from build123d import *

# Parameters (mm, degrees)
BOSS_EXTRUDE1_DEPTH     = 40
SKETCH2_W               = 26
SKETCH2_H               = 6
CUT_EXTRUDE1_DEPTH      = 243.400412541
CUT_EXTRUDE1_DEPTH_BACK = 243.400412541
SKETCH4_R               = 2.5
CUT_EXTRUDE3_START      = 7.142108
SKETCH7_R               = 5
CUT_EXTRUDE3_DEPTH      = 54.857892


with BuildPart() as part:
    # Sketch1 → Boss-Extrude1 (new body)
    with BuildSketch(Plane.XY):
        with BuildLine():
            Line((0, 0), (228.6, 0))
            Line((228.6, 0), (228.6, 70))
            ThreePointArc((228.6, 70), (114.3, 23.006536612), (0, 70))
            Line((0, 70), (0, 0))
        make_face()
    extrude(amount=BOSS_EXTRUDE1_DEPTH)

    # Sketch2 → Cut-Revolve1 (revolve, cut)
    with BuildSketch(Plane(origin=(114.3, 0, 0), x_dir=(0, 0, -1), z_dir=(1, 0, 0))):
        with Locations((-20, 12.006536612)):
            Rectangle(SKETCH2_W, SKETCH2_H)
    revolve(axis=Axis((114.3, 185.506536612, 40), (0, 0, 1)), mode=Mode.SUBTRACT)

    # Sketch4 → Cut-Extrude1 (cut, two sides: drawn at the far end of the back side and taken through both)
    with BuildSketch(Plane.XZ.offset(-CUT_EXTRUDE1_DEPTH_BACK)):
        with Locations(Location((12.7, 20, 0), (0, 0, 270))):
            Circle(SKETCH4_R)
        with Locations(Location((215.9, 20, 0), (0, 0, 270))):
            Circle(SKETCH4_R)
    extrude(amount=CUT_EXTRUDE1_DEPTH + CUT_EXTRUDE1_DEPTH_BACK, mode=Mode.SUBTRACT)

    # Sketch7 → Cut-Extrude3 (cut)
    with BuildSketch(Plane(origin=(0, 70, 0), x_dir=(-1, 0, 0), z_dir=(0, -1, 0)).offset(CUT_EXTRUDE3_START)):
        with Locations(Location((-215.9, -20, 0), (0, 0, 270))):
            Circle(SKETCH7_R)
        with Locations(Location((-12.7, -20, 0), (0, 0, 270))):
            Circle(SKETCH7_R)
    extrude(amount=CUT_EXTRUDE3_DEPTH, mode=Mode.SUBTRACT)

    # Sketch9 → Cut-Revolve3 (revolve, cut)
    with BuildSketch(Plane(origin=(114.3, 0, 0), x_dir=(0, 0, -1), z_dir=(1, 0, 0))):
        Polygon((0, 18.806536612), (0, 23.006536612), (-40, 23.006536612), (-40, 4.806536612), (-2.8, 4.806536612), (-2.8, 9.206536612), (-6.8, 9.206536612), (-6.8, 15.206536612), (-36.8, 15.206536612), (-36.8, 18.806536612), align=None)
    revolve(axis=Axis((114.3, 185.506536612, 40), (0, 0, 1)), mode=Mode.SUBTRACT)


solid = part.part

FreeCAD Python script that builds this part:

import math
import FreeCAD as App
import Part
import Sketcher
from FreeCAD import Vector
Q = App.Units.Quantity

doc = App.newDocument("Part")
body = doc.addObject("PartDesign::Body", "Body")

sketch1 = doc.addObject("Sketcher::SketchObject", "Sketch")
body.addObject(sketch1)
sketch1.AttachmentSupport = (doc.XY_Plane, [""])
sketch1.MapMode = "FlatFace"
sketch1.addGeometry([
    Part.LineSegment(Vector(0, 0, 0), Vector(229, 0, 0)),
    Part.LineSegment(Vector(229, 0, 0), Vector(229, 70, 0)),
    Part.ArcOfCircle(Part.Circle(Vector(114, 186, 0), Vector(0, 0, 1), 163), math.radians(-135), math.radians(-45)),
    Part.LineSegment(Vector(0, 70, 0), Vector(0, 0, 0)),
], False)
sketch1.addConstraint([
    Sketcher.Constraint("Coincident", 0, 2, 1, 1),
    Sketcher.Constraint("Coincident", 1, 2, 2, 2),
    Sketcher.Constraint("Coincident", 2, 1, 3, 1),
    Sketcher.Constraint("Coincident", 3, 2, 0, 1),
    Sketcher.Constraint("Horizontal", 0),
    Sketcher.Constraint("Vertical", 1),
    Sketcher.Constraint("Vertical", 3),
    Sketcher.Constraint("Coincident", 3, 2, -1, 1),
    Sketcher.Constraint("Horizontal", 1, 2, 2, 1),
    Sketcher.Constraint("Radius", 2, Q("162.5 mm")),
    Sketcher.Constraint("DistanceY", 1, 1, 1, 2, Q("70 mm")),
    Sketcher.Constraint("DistanceX", 0, 1, 0, 2, Q("228.6 mm")),
])
pad1 = doc.addObject("PartDesign::Pad", "Pad")
body.addObject(pad1)
pad1.Profile = sketch1
pad1.Length = 40

sketch2 = doc.addObject("Sketcher::SketchObject", "Sketch001")
body.addObject(sketch2)
sketch2.AttachmentSupport = (doc.YZ_Plane, [""])
sketch2.MapMode = "FlatFace"
sketch2.AttachmentOffset = App.Placement(Vector(0, 0, 114.3), App.Rotation())
sketch2.addGeometry([
    Part.LineSegment(Vector(15, 33, 0), Vector(9, 33, 0)),
    Part.LineSegment(Vector(9, 33, 0), Vector(9, 7, 0)),
    Part.LineSegment(Vector(9, 7, 0), Vector(15, 7, 0)),
    Part.LineSegment(Vector(15, 7, 0), Vector(15, 33, 0)),
], False)
sketch2.addGeometry(Part.LineSegment(Vector(186, 7, 0), Vector(186, 33, 0)), True)
sketch2.addConstraint([
    Sketcher.Constraint("Coincident", 0, 2, 1, 1),
    Sketcher.Constraint("Coincident", 1, 2, 2, 1),
    Sketcher.Constraint("Coincident", 2, 2, 3, 1),
    Sketcher.Constraint("Coincident", 3, 2, 0, 1),
    Sketcher.Constraint("Horizontal", 0),
    Sketcher.Constraint("Vertical", 1),
    Sketcher.Constraint("Horizontal", 2),
    Sketcher.Constraint("Vertical", 3),
    Sketcher.Constraint("Vertical", 4),
    Sketcher.Constraint("Horizontal", 2, 2, 4, 1),
    Sketcher.Constraint("Horizontal", 3, 2, 4, 2),
    Sketcher.Constraint("DistanceX", 0, 2, 0, 1, Q("6 mm")),
    Sketcher.Constraint("DistanceY", 1, 2, 1, 1, Q("26 mm")),
    Sketcher.Constraint("DistanceY", -1, 1, 0, 2, Q("33 mm")),
    Sketcher.Constraint("DistanceX", 2, 2, 4, 1, Q("170.5 mm")),
    Sketcher.Constraint("DistanceX", -1, 1, 0, 2, Q("9.006537 mm")),
])
groove = doc.addObject("PartDesign::Groove", "Groove")
body.addObject(groove)
groove.Profile = sketch2
groove.ReferenceAxis = (sketch2, ["Axis0"])
groove.Angle = 360

sketch3 = doc.addObject("Sketcher::SketchObject", "Sketch002")
body.addObject(sketch3)
sketch3.AttachmentSupport = (doc.XZ_Plane, [""])
sketch3.MapMode = "FlatFace"
sketch3.addGeometry([
    Part.Circle(Vector(12.7, 20, 0), Vector(0, 0, 1), 2.5),
    Part.Circle(Vector(215.9, 20, 0), Vector(0, 0, 1), 2.5),
], False)
sketch3.addConstraint([
    Sketcher.Constraint("Equal", 0, 1),
    Sketcher.Constraint("Horizontal", 0, 3, 1, 3),
    Sketcher.Constraint("Diameter", 0, Q("5 mm")),
    Sketcher.Constraint("DistanceY", -1, 1, 0, 3, Q("20 mm")),
    Sketcher.Constraint("DistanceX", -1, 1, 0, 3, Q("12.7 mm")),
    Sketcher.Constraint("DistanceX", -1, 1, 1, 3, Q("215.9 mm")),
])
pocket1 = doc.addObject("PartDesign::Pocket", "Pocket")
body.addObject(pocket1)
pocket1.Profile = sketch3
pocket1.Type = "ThroughAll"
pocket1.Midplane = True

sketch4 = doc.addObject("Sketcher::SketchObject", "Sketch003")
body.addObject(sketch4)
sketch4.AttachmentSupport = (doc.XZ_Plane, [""])
sketch4.MapMode = "FlatFace"
sketch4.AttachmentOffset = App.Placement(Vector(0, 0, -62.857892), App.Rotation())
sketch4.addGeometry([
    Part.Circle(Vector(216, 20, 0), Vector(0, 0, 1), 5),
    Part.Circle(Vector(13, 20, 0), Vector(0, 0, 1), 5),
], False)
sketch4.addConstraint([
    Sketcher.Constraint("Equal", 0, 1),
    Sketcher.Constraint("Horizontal", 0, 3, 1, 3),
    Sketcher.Constraint("Diameter", 0, Q("10 mm")),
    Sketcher.Constraint("DistanceY", -1, 1, 0, 3, Q("20 mm")),
    Sketcher.Constraint("DistanceX", -1, 1, 0, 3, Q("215.9 mm")),
    Sketcher.Constraint("DistanceX", -1, 1, 1, 3, Q("12.7 mm")),
])
pocket2 = doc.addObject("PartDesign::Pocket", "Pocket001")
body.addObject(pocket2)
pocket2.Profile = sketch4
pocket2.Length = 54.857892
pocket2.Reversed = True

sketch5 = doc.addObject("Sketcher::SketchObject", "Sketch004")
body.addObject(sketch5)
sketch5.AttachmentSupport = (doc.YZ_Plane, [""])
sketch5.MapMode = "FlatFace"
sketch5.AttachmentOffset = App.Placement(Vector(0, 0, 114.3), App.Rotation())
sketch5.addGeometry([
    Part.LineSegment(Vector(18.8, 0, 0), Vector(23, 0, 0)),
    Part.LineSegment(Vector(23, 0, 0), Vector(23, 40, 0)),
    Part.LineSegment(Vector(23, 40, 0), Vector(4.8, 40, 0)),
    Part.LineSegment(Vector(4.8, 40, 0), Vector(4.8, 2.8, 0)),
    Part.LineSegment(Vector(4.8, 2.8, 0), Vector(9.2, 2.8, 0)),
    Part.LineSegment(Vector(9.2, 2.8, 0), Vector(9.2, 6.8, 0)),
    Part.LineSegment(Vector(9.2, 6.8, 0), Vector(15.2, 6.8, 0)),
    Part.LineSegment(Vector(15.2, 6.8, 0), Vector(15.2, 36.8, 0)),
    Part.LineSegment(Vector(15.2, 36.8, 0), Vector(18.8, 36.8, 0)),
    Part.LineSegment(Vector(18.8, 36.8, 0), Vector(18.8, 0, 0)),
], False)
sketch5.addGeometry(Part.LineSegment(Vector(185.5, 0, 0), Vector(185.5, 40, 0)), True)
sketch5.addConstraint([
    Sketcher.Constraint("Coincident", 0, 2, 1, 1),
    Sketcher.Constraint("Coincident", 1, 2, 2, 1),
    Sketcher.Constraint("Coincident", 2, 2, 3, 1),
    Sketcher.Constraint("Coincident", 3, 2, 4, 1),
    Sketcher.Constraint("Coincident", 4, 2, 5, 1),
    Sketcher.Constraint("Coincident", 5, 2, 6, 1),
    Sketcher.Constraint("Coincident", 6, 2, 7, 1),
    Sketcher.Constraint("Coincident", 7, 2, 8, 1),
    Sketcher.Constraint("Coincident", 8, 2, 9, 1),
    Sketcher.Constraint("Coincident", 9, 2, 0, 1),
    Sketcher.Constraint("Horizontal", 0),
    Sketcher.Constraint("Vertical", 1),
    Sketcher.Constraint("Horizontal", 2),
    Sketcher.Constraint("Vertical", 3),
    Sketcher.Constraint("Horizontal", 4),
    Sketcher.Constraint("Vertical", 5),
    Sketcher.Constraint("Horizontal", 6),
    Sketcher.Constraint("Vertical", 7),
    Sketcher.Constraint("Horizontal", 8),
    Sketcher.Constraint("Vertical", 9),
    Sketcher.Constraint("Vertical", 10),
    Sketcher.Constraint("PointOnObject", 0, 2, -1),
    Sketcher.Constraint("PointOnObject", 10, 1, -1),
    Sketcher.Constraint("Horizontal", 2, 2, 10, 2),
    Sketcher.Constraint("DistanceX", 6, 1, 6, 2, Q("6 mm")),
    Sketcher.Constraint("DistanceY", 1, 1, 1, 2, Q("40 mm")),
    Sketcher.Constraint("DistanceY", 5, 1, 5, 2, Q("4 mm")),
    Sketcher.Constraint("DistanceY", 7, 1, 7, 2, Q("30 mm")),
    Sketcher.Constraint("DistanceX", 0, 1, 0, 2, Q("4.2 mm")),
    Sketcher.Constraint("DistanceX", 2, 2, 2, 1, Q("18.2 mm")),
    Sketcher.Constraint("DistanceX", 4, 1, 4, 2, Q("4.4 mm")),
    Sketcher.Constraint("DistanceY", 3, 2, 3, 1, Q("37.2 mm")),
    Sketcher.Constraint("DistanceX", 0, 2, 10, 1, Q("162.5 mm")),
    Sketcher.Constraint("DistanceX", -1, 1, 0, 2, Q("23.006537 mm")),
])
groove2 = doc.addObject("PartDesign::Groove", "Groove001")
body.addObject(groove2)
groove2.Profile = sketch5
groove2.ReferenceAxis = (sketch5, ["Axis0"])
groove2.Angle = 360

doc.recompute()
